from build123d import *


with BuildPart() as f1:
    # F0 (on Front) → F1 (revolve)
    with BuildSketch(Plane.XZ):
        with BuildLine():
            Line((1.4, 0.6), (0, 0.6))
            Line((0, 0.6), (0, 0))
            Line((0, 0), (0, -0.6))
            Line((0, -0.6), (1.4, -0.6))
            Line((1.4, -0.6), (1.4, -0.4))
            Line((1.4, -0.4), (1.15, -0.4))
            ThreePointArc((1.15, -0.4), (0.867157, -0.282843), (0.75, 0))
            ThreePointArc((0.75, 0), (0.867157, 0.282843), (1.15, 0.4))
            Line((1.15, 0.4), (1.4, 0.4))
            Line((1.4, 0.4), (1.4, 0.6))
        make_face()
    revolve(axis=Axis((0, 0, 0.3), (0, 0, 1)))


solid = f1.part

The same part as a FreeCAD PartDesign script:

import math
import FreeCAD as App
import Part
import Sketcher
from FreeCAD import Vector
Q = App.Units.Quantity

doc = App.newDocument("Part")
body = doc.addObject("PartDesign::Body", "Body")

sketch1 = body.newObject("Sketcher::SketchObject", "Sketch")
sketch1.AttachmentSupport = (doc.getObject("XZ_Plane"), [""])
sketch1.MapMode = "FlatFace"
sketch1.addGeometry(Part.LineSegment(Vector(1.4, 0.6, 0), Vector(0, 0.6, 0)), False)
sketch1.addGeometry(Part.LineSegment(Vector(0, 0.6, 0), Vector(0, -0.6, 0)), False)
sketch1.addGeometry(Part.LineSegment(Vector(0, -0.6, 0), Vector(1.4, -0.6, 0)), False)
sketch1.addGeometry(Part.LineSegment(Vector(1.4, -0.6, 0), Vector(1.4, -0.4, 0)), False)
sketch1.addGeometry(Part.LineSegment(Vector(1.4, -0.4, 0), Vector(1.15, -0.4, 0)), False)
sketch1.addGeometry(Part.ArcOfCircle(Part.Circle(Vector(1.15, 0, 0), Vector(0, 0, 1), 0.4), math.radians(180), math.radians(270)), False)
sketch1.addGeometry(Part.ArcOfCircle(Part.Circle(Vector(1.15, 0, 0), Vector(0, 0, 1), 0.4), math.radians(90), math.radians(180)), False)
sketch1.addGeometry(Part.LineSegment(Vector(1.15, 0.4, 0), Vector(1.4, 0.4, 0)), False)
sketch1.addGeometry(Part.LineSegment(Vector(1.4, 0.4, 0), Vector(1.4, 0.6, 0)), False)
sketch1.addConstraint(Sketcher.Constraint("Coincident", 0, 2, 1, 1))
sketch1.addConstraint(Sketcher.Constraint("Coincident", 1, 2, 2, 1))
sketch1.addConstraint(Sketcher.Constraint("Coincident", 2, 2, 3, 1))
sketch1.addConstraint(Sketcher.Constraint("Coincident", 3, 2, 4, 1))
sketch1.addConstraint(Sketcher.Constraint("Coincident", 4, 2, 5, 2))
sketch1.addConstraint(Sketcher.Constraint("Coincident", 5, 1, 6, 2))
sketch1.addConstraint(Sketcher.Constraint("Coincident", 6, 1, 7, 1))
sketch1.addConstraint(Sketcher.Constraint("Coincident", 7, 2, 8, 1))
sketch1.addConstraint(Sketcher.Constraint("Coincident", 8, 2, 0, 1))
sketch1.addConstraint(Sketcher.Constraint("Horizontal", 0))
sketch1.addConstraint(Sketcher.Constraint("Vertical", 1))
sketch1.addConstraint(Sketcher.Constraint("Horizontal", 2))
sketch1.addConstraint(Sketcher.Constraint("Vertical", 3))
sketch1.addConstraint(Sketcher.Constraint("Horizontal", 4))
sketch1.addConstraint(Sketcher.Constraint("Horizontal", 7))
sketch1.addConstraint(Sketcher.Constraint("Vertical", 8))
sketch1.addConstraint(Sketcher.Constraint("Coincident", 6, 3, 5, 3))
sketch1.addConstraint(Sketcher.Constraint("Symmetric", 0, 2, 1, 2, -1, 1))
sketch1.addConstraint(Sketcher.Constraint("Symmetric", 4, 2, 6, 1, -1))
sketch1.addConstraint(Sketcher.Constraint("PointOnObject", 5, 1, -1))
sketch1.addConstraint(Sketcher.Constraint("Vertical", 6, 3, 4, 2))
sketch1.addConstraint(Sketcher.Constraint("Vertical", 3, 2, 7, 2))
sketch1.addConstraint(Sketcher.Constraint("Radius", 5, Q("0.399999 mm")))
sketch1.addConstraint(Sketcher.Constraint("DistanceX", 0, 2, 0, 1, Q("1.4 mm")))
sketch1.addConstraint(Sketcher.Constraint("DistanceY", 1, 2, 1, 1, Q("1.2 mm")))
sketch1.addConstraint(Sketcher.Constraint("DistanceX", 4, 2, 4, 1, Q("0.25 mm")))
revolution = body.newObject("PartDesign::Revolution", "Revolution")
revolution.Profile = sketch1
revolution.ReferenceAxis = (sketch1, ["V_Axis"])
revolution.Angle = 360

doc.recompute()
